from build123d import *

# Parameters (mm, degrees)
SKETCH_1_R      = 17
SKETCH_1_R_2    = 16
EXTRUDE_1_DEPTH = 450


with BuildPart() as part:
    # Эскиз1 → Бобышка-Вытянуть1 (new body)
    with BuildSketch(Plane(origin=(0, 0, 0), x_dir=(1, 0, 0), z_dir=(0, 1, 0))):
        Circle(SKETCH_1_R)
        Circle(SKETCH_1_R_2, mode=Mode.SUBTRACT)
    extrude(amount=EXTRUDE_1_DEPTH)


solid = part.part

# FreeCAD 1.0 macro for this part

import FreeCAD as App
import Part
import Sketcher

doc = App.newDocument("Part")
body = doc.addObject("PartDesign::Body", "Body")

sketch1 = body.newObject("Sketcher::SketchObject", "Sketch")
sketch1.AttachmentSupport = (doc.getObject("XZ_Plane"), [""])
sketch1.MapMode = "FlatFace"
sketch1.addGeometry(Part.Circle(App.Vector(0, 0, 0), App.Vector(0, 0, 1), 17), False)
sketch1.addGeometry(Part.Circle(App.Vector(0, 0, 0), App.Vector(0, 0, 1), 16), False)
sketch1.addConstraint(Sketcher.Constraint("Coincident", 0, 3, -1, 1))
sketch1.addConstraint(Sketcher.Constraint("Coincident", 1, 3, -1, 1))
sketch1.addConstraint(Sketcher.Constraint("Diameter", 0, 34.0))
sketch1.addConstraint(Sketcher.Constraint("Diameter", 1, 32.0))
pad1 = body.newObject("PartDesign::Pad", "Pad")
pad1.Profile = sketch1
pad1.Length = 450
pad1.Reversed = True

doc.recompute()
